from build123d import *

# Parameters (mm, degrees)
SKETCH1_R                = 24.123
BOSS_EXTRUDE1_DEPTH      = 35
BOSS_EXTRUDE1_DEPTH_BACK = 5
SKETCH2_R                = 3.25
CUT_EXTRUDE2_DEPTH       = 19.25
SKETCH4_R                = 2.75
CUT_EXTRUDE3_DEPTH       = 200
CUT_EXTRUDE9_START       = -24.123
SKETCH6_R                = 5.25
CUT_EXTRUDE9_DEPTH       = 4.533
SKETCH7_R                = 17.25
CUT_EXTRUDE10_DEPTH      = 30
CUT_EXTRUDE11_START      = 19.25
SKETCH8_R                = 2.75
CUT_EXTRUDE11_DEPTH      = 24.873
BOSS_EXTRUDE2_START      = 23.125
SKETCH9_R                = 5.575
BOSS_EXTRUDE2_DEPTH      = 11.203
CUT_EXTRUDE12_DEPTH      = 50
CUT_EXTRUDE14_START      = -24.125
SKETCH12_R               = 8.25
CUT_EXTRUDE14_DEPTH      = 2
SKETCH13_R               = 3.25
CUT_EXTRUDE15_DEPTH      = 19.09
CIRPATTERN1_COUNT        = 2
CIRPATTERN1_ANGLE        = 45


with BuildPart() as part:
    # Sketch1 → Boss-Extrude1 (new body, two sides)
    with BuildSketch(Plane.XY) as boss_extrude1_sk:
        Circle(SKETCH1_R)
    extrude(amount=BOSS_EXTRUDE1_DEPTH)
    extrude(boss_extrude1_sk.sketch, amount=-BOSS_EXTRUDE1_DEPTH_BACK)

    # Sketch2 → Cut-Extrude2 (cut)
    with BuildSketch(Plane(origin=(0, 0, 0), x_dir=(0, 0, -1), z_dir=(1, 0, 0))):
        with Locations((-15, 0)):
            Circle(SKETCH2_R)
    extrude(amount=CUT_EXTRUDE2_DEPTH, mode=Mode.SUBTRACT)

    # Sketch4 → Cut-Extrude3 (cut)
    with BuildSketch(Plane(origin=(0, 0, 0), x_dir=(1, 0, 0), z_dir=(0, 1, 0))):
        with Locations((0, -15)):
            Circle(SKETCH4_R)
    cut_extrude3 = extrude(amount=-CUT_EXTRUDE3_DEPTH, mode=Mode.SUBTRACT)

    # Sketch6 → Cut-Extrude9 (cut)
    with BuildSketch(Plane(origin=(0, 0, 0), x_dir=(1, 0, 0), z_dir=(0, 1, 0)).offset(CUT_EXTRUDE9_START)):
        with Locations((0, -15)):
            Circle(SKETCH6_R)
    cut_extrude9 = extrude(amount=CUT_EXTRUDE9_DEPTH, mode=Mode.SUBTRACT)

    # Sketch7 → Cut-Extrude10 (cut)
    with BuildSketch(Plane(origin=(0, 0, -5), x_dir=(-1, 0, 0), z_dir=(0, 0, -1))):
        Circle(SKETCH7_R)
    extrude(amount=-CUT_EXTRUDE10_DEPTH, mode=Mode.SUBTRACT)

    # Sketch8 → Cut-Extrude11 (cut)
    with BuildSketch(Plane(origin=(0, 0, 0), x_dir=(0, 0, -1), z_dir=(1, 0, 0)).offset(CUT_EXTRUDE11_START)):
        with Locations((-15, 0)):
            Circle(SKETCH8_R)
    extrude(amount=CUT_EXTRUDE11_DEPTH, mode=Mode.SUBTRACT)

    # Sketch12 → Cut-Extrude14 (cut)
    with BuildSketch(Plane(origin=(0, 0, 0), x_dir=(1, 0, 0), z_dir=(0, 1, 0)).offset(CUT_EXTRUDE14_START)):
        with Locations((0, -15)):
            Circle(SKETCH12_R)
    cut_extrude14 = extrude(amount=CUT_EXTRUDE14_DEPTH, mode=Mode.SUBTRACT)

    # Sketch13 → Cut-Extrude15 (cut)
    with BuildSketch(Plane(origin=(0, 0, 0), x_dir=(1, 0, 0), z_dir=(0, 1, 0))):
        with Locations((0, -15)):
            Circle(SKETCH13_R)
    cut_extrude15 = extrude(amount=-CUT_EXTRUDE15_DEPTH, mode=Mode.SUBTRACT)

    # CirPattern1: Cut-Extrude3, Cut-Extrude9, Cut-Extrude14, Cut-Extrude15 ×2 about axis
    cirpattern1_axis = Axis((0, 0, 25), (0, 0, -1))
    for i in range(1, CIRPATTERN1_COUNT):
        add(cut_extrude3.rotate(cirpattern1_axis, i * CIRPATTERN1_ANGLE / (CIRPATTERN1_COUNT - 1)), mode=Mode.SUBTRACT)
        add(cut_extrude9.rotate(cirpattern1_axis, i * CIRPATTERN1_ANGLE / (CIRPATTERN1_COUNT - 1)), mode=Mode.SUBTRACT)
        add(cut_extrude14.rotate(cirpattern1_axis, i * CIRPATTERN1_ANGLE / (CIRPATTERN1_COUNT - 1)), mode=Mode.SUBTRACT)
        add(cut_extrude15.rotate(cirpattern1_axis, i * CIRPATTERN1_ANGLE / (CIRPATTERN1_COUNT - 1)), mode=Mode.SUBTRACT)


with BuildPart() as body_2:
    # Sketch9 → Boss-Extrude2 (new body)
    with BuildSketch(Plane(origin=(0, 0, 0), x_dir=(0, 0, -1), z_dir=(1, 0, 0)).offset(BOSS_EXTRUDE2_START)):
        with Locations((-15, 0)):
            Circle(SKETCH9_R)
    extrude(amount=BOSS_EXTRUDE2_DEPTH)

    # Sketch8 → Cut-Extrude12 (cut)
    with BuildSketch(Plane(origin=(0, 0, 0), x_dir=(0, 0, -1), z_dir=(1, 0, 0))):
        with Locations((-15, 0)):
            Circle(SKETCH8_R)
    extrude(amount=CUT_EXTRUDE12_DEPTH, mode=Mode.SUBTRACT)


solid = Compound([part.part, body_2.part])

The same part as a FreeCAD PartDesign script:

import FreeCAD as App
import Part
import Sketcher

V = App.Vector

doc = App.newDocument("Part")
params = doc.addObject("Spreadsheet::Sheet", "Params")
for row, (alias, value) in enumerate([
    ("pad1_length", "35 mm"),
    ("pad1_length2", "5 mm"),
    ("sketch2_diameter", "6.5 mm"),
    ("pocket1_length", "19.25 mm"),
    ("sketch3_diameter", "5.5 mm"),
    ("pocket2_length", "200 mm"),
    ("sketch4_diameter", "10.5 mm"),
    ("pocket3_length", "4.533 mm"),
    ("sketch5_diameter", "34.5 mm"),
    ("pocket4_length", "30 mm"),
    ("sketch6_diameter", "5.5 mm"),
    ("pocket5_length", "24.873 mm"),
    ("sketch7_diameter", "16.5 mm"),
    ("pocket6_length", "2 mm"),
    ("sketch8_diameter", "6.5 mm"),
    ("pocket7_length", "19.09 mm"),
    ("sketch9_diameter", "11.15 mm"),
    ("pad2_length", "11.203 mm"),
    ("sketch10_diameter", "5.5 mm"),
    ("pocket8_length", "50 mm"),
], start=1):
    params.set(f"A{row}", alias)
    params.set(f"B{row}", "=" + value)
    params.setAlias(f"B{row}", alias)

body = doc.addObject("PartDesign::Body", "Body")

# Sketch on XY plane
sketch1 = body.newObject("Sketcher::SketchObject", "Sketch")
sketch1.AttachmentSupport = (doc.getObject("XY_Plane"), [""])
sketch1.MapMode = "FlatFace"
sketch1.addGeometry(Part.Circle(V(0, 0, 0), V(0, 0, 1), 24), False)
sketch1.addConstraint([
    Sketcher.Constraint("Coincident", 0, 3, -1, 1),
    Sketcher.Constraint("Diameter", 0, 48.246),
])
pad1 = body.newObject("PartDesign::Pad", "Pad")
pad1.Profile = sketch1
pad1.Type = "TwoLengths"
pad1.setExpression("Length", "Params.pad1_length")
pad1.setExpression("Length2", "Params.pad1_length2")

# Sketch on YZ plane
sketch2 = body.newObject("Sketcher::SketchObject", "Sketch001")
sketch2.AttachmentSupport = (doc.getObject("YZ_Plane"), [""])
sketch2.MapMode = "FlatFace"
sketch2.addGeometry(Part.Circle(V(0, 15, 0), V(0, 0, 1), 3.2), False)
sketch2.addConstraint([
    Sketcher.Constraint("PointOnObject", 0, 3, -2),
    Sketcher.Constraint("Diameter", 0, 6.5),
    Sketcher.Constraint("DistanceY", -1, 1, 0, 3, 15.0),
])
sketch2.setExpression("Constraints[1]", "Params.sketch2_diameter")
pocket1 = body.newObject("PartDesign::Pocket", "Pocket")
pocket1.Profile = sketch2
pocket1.setExpression("Length", "Params.pocket1_length")
pocket1.Reversed = True

# Sketch on XZ plane
sketch3 = body.newObject("Sketcher::SketchObject", "Sketch002")
sketch3.AttachmentSupport = (doc.getObject("XZ_Plane"), [""])
sketch3.MapMode = "FlatFace"
sketch3.addGeometry(Part.Circle(V(0, 15, 0), V(0, 0, 1), 2.8), False)
sketch3.addConstraint([
    Sketcher.Constraint("PointOnObject", 0, 3, -2),
    Sketcher.Constraint("Diameter", 0, 5.5),
    Sketcher.Constraint("DistanceY", -1, 1, 0, 3, 15.0),
])
sketch3.setExpression("Constraints[1]", "Params.sketch3_diameter")
pocket2 = body.newObject("PartDesign::Pocket", "Pocket001")
pocket2.Profile = sketch3
pocket2.setExpression("Length", "Params.pocket2_length")
pocket2.Reversed = True

# Sketch on XZ plane
sketch4 = body.newObject("Sketcher::SketchObject", "Sketch003")
sketch4.AttachmentSupport = (doc.getObject("XZ_Plane"), [""])
sketch4.MapMode = "FlatFace"
sketch4.AttachmentOffset = App.Placement(V(0, 0, 24.123), App.Rotation())
sketch4.addGeometry(Part.Circle(V(0, 15, 0), V(0, 0, 1), 5), False)
sketch4.addConstraint([
    Sketcher.Constraint("PointOnObject", 0, 3, -2),
    Sketcher.Constraint("Diameter", 0, 10.5),
    Sketcher.Constraint("DistanceY", -1, 1, 0, 3, 15.0),
])
sketch4.setExpression("Constraints[1]", "Params.sketch4_diameter")
pocket3 = body.newObject("PartDesign::Pocket", "Pocket002")
pocket3.Profile = sketch4
pocket3.setExpression("Length", "Params.pocket3_length")

# Sketch on XY plane
sketch5 = body.newObject("Sketcher::SketchObject", "Sketch004")
sketch5.AttachmentSupport = (doc.getObject("XY_Plane"), [""])
sketch5.MapMode = "FlatFace"
sketch5.AttachmentOffset = App.Placement(V(0, 0, -5), App.Rotation())
sketch5.addGeometry(Part.Circle(V(0, 0, 0), V(0, 0, 1), 17), False)
sketch5.addConstraint([
    Sketcher.Constraint("Coincident", 0, 3, -1, 1),
    Sketcher.Constraint("Diameter", 0, 34.5),
])
sketch5.setExpression("Constraints[1]", "Params.sketch5_diameter")
pocket4 = body.newObject("PartDesign::Pocket", "Pocket003")
pocket4.Profile = sketch5
pocket4.setExpression("Length", "Params.pocket4_length")
pocket4.Reversed = True

# Sketch on YZ plane
sketch6 = body.newObject("Sketcher::SketchObject", "Sketch005")
sketch6.AttachmentSupport = (doc.getObject("YZ_Plane"), [""])
sketch6.MapMode = "FlatFace"
sketch6.AttachmentOffset = App.Placement(V(0, 0, 19.25), App.Rotation())
sketch6.addGeometry(Part.Circle(V(0, 15, 0), V(0, 0, 1), 2.8), False)
sketch6.addConstraint([
    Sketcher.Constraint("PointOnObject", 0, 3, -2),
    Sketcher.Constraint("Diameter", 0, 5.5),
    Sketcher.Constraint("DistanceY", -1, 1, 0, 3, 15.0),
])
sketch6.setExpression("Constraints[1]", "Params.sketch6_diameter")
pocket5 = body.newObject("PartDesign::Pocket", "Pocket004")
pocket5.Profile = sketch6
pocket5.setExpression("Length", "Params.pocket5_length")
pocket5.Reversed = True

# Sketch on XZ plane
sketch7 = body.newObject("Sketcher::SketchObject", "Sketch006")
sketch7.AttachmentSupport = (doc.getObject("XZ_Plane"), [""])
sketch7.MapMode = "FlatFace"
sketch7.AttachmentOffset = App.Placement(V(0, 0, 24.125), App.Rotation())
sketch7.addGeometry(Part.Circle(V(0, 15, 0), V(0, 0, 1), 8), False)
sketch7.addConstraint([
    Sketcher.Constraint("PointOnObject", 0, 3, -2),
    Sketcher.Constraint("Diameter", 0, 16.5),
    Sketcher.Constraint("DistanceY", -1, 1, 0, 3, 15.0),
])
sketch7.setExpression("Constraints[1]", "Params.sketch7_diameter")
pocket6 = body.newObject("PartDesign::Pocket", "Pocket005")
pocket6.Profile = sketch7
pocket6.setExpression("Length", "Params.pocket6_length")

# Sketch on XZ plane
sketch8 = body.newObject("Sketcher::SketchObject", "Sketch007")
sketch8.AttachmentSupport = (doc.getObject("XZ_Plane"), [""])
sketch8.MapMode = "FlatFace"
sketch8.addGeometry(Part.Circle(V(0, 15, 0), V(0, 0, 1), 3.2), False)
sketch8.addConstraint([
    Sketcher.Constraint("PointOnObject", 0, 3, -2),
    Sketcher.Constraint("Diameter", 0, 6.5),
    Sketcher.Constraint("DistanceY", -1, 1, 0, 3, 15.0),
])
sketch8.setExpression("Constraints[1]", "Params.sketch8_diameter")
pocket7 = body.newObject("PartDesign::Pocket", "Pocket006")
pocket7.Profile = sketch8
pocket7.setExpression("Length", "Params.pocket7_length")
pocket7.Reversed = True
doc.recompute()

polarpattern = body.newObject("PartDesign::PolarPattern", "PolarPattern")
polarpattern.Originals = [pocket2, pocket3, pocket6, pocket7]
polarpattern.Axis = (doc.getObject("Z_Axis"), [""])
polarpattern.Angle = 45
polarpattern.Occurrences = 2
polarpattern.Reversed = True
body.Tip = polarpattern
body2 = doc.addObject("PartDesign::Body", "Body001")

# Sketch on YZ plane
sketch9 = body2.newObject("Sketcher::SketchObject", "Sketch008")
sketch9.AttachmentSupport = (doc.getObject("YZ_Plane001"), [""])
sketch9.MapMode = "FlatFace"
sketch9.AttachmentOffset = App.Placement(V(0, 0, 23.125), App.Rotation())
sketch9.addGeometry(Part.Circle(V(0, 15, 0), V(0, 0, 1), 6), False)
sketch9.addConstraint([
    Sketcher.Constraint("PointOnObject", 0, 3, -2),
    Sketcher.Constraint("Diameter", 0, 11.15),
    Sketcher.Constraint("DistanceY", -1, 1, 0, 3, 15.0),
])
sketch9.setExpression("Constraints[1]", "Params.sketch9_diameter")
pad2 = body2.newObject("PartDesign::Pad", "Pad001")
pad2.Profile = sketch9
pad2.setExpression("Length", "Params.pad2_length")

# Sketch on YZ plane
sketch10 = body2.newObject("Sketcher::SketchObject", "Sketch009")
sketch10.AttachmentSupport = (doc.getObject("YZ_Plane001"), [""])
sketch10.MapMode = "FlatFace"
sketch10.addGeometry(Part.Circle(V(0, 15, 0), V(0, 0, 1), 2.8), False)
sketch10.addConstraint([
    Sketcher.Constraint("PointOnObject", 0, 3, -2),
    Sketcher.Constraint("Diameter", 0, 5.5),
    Sketcher.Constraint("DistanceY", -1, 1, 0, 3, 15.0),
])
sketch10.setExpression("Constraints[1]", "Params.sketch10_diameter")
pocket8 = body2.newObject("PartDesign::Pocket", "Pocket007")
pocket8.Profile = sketch10
pocket8.setExpression("Length", "Params.pocket8_length")
pocket8.Reversed = True

doc.recompute()
